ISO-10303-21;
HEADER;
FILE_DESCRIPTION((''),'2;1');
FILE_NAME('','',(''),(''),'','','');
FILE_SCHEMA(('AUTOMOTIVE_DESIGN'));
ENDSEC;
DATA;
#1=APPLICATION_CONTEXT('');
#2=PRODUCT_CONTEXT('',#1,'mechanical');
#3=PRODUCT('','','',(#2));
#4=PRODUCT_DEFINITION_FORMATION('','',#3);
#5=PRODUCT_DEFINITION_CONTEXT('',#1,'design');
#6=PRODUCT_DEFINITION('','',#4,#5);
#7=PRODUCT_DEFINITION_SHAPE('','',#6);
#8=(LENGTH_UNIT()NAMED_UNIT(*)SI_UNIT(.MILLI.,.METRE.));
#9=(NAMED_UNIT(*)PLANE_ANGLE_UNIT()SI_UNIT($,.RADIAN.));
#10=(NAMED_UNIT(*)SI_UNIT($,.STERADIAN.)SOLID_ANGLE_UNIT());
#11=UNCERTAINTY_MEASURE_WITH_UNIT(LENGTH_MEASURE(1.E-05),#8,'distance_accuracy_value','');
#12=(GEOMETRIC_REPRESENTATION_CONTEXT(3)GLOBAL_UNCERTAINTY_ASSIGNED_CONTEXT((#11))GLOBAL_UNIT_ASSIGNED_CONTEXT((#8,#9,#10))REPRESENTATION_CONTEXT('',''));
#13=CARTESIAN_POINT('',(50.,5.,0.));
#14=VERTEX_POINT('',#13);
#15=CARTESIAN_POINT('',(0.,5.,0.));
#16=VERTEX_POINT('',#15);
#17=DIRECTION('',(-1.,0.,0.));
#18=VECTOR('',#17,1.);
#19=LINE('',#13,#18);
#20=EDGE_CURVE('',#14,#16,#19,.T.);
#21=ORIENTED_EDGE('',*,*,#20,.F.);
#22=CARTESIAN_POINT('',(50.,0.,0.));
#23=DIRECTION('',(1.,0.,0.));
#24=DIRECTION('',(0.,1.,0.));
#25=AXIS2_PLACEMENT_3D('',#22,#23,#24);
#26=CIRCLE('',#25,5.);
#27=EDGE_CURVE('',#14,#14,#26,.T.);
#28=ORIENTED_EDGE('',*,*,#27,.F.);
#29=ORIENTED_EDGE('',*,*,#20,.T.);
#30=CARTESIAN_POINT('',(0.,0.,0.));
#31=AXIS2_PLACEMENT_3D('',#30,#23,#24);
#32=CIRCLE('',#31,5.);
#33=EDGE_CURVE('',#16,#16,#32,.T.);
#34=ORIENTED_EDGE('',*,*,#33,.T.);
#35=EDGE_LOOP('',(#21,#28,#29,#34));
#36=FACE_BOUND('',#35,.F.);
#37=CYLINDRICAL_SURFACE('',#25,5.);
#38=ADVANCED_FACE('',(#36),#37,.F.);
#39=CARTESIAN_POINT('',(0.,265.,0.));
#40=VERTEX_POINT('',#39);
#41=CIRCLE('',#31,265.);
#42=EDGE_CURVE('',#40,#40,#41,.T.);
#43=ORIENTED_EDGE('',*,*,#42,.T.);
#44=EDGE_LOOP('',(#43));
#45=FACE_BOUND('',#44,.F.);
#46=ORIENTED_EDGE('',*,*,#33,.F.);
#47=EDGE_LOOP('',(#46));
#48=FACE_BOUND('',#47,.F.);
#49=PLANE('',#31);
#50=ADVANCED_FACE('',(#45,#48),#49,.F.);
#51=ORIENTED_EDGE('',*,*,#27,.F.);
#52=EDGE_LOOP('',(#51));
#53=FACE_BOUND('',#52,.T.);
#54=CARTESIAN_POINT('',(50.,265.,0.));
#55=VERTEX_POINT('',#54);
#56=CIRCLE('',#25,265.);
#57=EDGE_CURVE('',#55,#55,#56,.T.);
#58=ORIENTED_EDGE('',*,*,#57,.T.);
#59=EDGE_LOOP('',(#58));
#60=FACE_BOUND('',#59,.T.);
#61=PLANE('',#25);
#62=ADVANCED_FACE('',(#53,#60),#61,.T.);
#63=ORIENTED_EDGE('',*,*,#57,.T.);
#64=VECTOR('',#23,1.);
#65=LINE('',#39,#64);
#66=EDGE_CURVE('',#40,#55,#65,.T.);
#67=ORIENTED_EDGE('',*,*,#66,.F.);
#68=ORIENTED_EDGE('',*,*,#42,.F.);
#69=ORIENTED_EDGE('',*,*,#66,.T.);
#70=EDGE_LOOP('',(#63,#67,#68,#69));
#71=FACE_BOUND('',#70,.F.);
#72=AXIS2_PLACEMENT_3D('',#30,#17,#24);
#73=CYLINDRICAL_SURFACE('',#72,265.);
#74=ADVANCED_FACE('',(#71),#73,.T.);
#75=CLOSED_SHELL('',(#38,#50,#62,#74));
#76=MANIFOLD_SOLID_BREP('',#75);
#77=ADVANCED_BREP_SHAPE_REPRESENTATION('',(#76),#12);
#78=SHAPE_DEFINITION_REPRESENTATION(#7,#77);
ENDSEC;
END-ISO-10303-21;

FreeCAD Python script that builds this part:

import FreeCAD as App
import Part
import Sketcher

V = App.Vector
Q = App.Units.Quantity

doc = App.newDocument("Part")
params = doc.addObject("Spreadsheet::Sheet", "Params")
for row, (alias, value) in enumerate([
    ("sketch1_diameter", "530 mm"),
    ("pad1_length", "50 mm"),
    ("sketch2_diameter", "10 mm"),
    ("pocket1_length", "50 mm"),
], start=1):
    params.set(f"A{row}", alias)
    params.set(f"B{row}", "=" + value)
    params.setAlias(f"B{row}", alias)

body = doc.addObject("PartDesign::Body", "Body")

# Sketch on YZ plane
sketch1 = body.newObject("Sketcher::SketchObject", "Sketch")
sketch1.AttachmentSupport = (doc.getObject("YZ_Plane"), [""])
sketch1.MapMode = "FlatFace"
sketch1.addGeometry(Part.Circle(V(0, 0, 0), V(0, 0, 1), 265), False)
sketch1.addConstraint(Sketcher.Constraint("Coincident", 0, 3, -1, 1))
sketch1.addConstraint(Sketcher.Constraint("Diameter", 0, Q("530 mm")))
sketch1.setExpression("Constraints[1]", "Params.sketch1_diameter")
pad1 = body.newObject("PartDesign::Pad", "Pad")
pad1.Profile = sketch1
pad1.setExpression("Length", "Params.pad1_length")

# Sketch on YZ plane
sketch2 = body.newObject("Sketcher::SketchObject", "Sketch001")
sketch2.AttachmentSupport = (doc.getObject("YZ_Plane"), [""])
sketch2.MapMode = "FlatFace"
sketch2.AttachmentOffset = App.Placement(V(0, 0, 50), App.Rotation())
sketch2.addGeometry(Part.Circle(V(0, 0, 0), V(0, 0, 1), 5), False)
sketch2.addConstraint(Sketcher.Constraint("Coincident", 0, 3, -1, 1))
sketch2.addConstraint(Sketcher.Constraint("Diameter", 0, Q("10 mm")))
sketch2.setExpression("Constraints[1]", "Params.sketch2_diameter")
pocket1 = body.newObject("PartDesign::Pocket", "Pocket")
pocket1.Profile = sketch2
pocket1.setExpression("Length", "Params.pocket1_length")

doc.recompute()
